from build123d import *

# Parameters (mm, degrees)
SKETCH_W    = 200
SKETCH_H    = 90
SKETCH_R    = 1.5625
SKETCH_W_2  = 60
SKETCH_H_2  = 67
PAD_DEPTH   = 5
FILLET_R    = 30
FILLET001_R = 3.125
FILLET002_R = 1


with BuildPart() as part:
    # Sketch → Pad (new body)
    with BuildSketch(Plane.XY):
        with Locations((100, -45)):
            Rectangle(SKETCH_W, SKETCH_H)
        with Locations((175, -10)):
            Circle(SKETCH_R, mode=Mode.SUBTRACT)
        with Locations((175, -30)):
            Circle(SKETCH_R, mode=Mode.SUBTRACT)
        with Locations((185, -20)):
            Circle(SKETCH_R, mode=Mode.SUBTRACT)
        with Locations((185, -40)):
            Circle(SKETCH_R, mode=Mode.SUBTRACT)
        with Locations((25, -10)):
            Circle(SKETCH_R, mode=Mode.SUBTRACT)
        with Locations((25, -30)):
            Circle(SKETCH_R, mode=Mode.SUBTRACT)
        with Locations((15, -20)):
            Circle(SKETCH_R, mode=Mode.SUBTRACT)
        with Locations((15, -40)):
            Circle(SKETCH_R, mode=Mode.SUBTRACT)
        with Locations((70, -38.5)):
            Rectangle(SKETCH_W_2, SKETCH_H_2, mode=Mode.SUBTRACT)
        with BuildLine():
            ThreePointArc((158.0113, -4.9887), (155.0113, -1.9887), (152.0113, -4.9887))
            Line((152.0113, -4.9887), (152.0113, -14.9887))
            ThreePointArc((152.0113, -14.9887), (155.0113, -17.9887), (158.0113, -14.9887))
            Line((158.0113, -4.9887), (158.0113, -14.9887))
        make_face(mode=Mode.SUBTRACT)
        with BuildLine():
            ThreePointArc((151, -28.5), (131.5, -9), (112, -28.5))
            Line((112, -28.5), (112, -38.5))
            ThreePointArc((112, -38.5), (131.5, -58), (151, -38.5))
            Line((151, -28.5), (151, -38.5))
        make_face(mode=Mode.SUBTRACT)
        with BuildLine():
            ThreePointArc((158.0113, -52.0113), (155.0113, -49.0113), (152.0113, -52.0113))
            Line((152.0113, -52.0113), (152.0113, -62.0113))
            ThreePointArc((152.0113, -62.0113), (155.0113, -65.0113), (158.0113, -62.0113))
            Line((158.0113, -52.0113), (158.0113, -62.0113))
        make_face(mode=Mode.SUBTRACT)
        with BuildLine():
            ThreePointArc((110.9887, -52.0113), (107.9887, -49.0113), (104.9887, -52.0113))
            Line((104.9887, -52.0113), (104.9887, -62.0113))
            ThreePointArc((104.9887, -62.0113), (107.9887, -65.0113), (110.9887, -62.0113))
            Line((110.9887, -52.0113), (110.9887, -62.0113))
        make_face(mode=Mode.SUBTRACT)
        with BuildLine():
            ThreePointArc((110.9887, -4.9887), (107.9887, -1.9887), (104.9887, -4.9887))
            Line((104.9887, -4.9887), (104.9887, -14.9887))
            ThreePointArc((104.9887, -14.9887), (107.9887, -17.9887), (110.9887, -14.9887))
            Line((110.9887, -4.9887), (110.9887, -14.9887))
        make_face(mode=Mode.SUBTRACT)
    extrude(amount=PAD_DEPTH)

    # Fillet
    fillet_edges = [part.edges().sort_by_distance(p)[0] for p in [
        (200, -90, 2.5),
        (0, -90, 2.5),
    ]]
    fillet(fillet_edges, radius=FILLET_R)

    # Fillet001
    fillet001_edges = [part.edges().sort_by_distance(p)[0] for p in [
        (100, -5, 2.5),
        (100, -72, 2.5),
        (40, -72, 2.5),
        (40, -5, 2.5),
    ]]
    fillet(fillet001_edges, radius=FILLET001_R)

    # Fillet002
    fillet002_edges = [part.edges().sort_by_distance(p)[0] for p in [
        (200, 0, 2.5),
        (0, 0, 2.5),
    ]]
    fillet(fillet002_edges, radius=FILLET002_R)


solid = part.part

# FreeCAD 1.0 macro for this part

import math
import FreeCAD as App
import Part
import Sketcher
Q = App.Units.Quantity


def edges_at(feature, points):
    """Names of the edges that pass closest to the given points."""
    edges = feature.Shape.Edges
    near = lambda p: min(range(len(edges)), key=lambda i: edges[i].distToShape(Part.Vertex(*p))[0])
    return sorted({f"Edge{near(p) + 1}" for p in points})


def add_polygon(sketch, points):
    """Adds a closed chain of lines whose ends are joined by coincident constraints."""
    first, n = sketch.GeometryCount, len(points)
    for a, b in zip(points, points[1:] + points[:1]):
        sketch.addGeometry(Part.LineSegment(App.Vector(*a, 0), App.Vector(*b, 0)), False)
    for i in range(n):
        sketch.addConstraint(Sketcher.Constraint("Coincident", first + i, 2, first + (i + 1) % n, 1))

doc = App.newDocument("Part")
body = doc.addObject("PartDesign::Body", "Body")

# Sketch on XY plane
sketch1 = body.newObject("Sketcher::SketchObject", "Sketch")
sketch1.AttachmentSupport = (doc.getObject("XY_Plane"), [""])
sketch1.MapMode = "FlatFace"
add_polygon(sketch1, [(0, 0), (0, -90), (200, -90), (200, 0)])  # lines 0-3
sketch1.addGeometry(Part.Circle(App.Vector(15, -40, 0), App.Vector(0, 0, 1), 1.6), False)  # 4
add_polygon(sketch1, [(100, -72), (40, -72), (40, -5), (100, -5)])  # lines 5-8
sketch1.addGeometry(Part.ArcOfCircle(Part.Circle(App.Vector(108, -52, 0), App.Vector(0, 0, 1), 3), math.radians(0), math.radians(180)), False)  # 9
sketch1.addGeometry(Part.LineSegment(App.Vector(111, -52, 0), App.Vector(111, -62, 0)), False)  # 10
sketch1.addGeometry(Part.ArcOfCircle(Part.Circle(App.Vector(108, -62, 0), App.Vector(0, 0, 1), 3), math.radians(180), math.radians(360)), False)  # 11
sketch1.addGeometry(Part.LineSegment(App.Vector(105, -62, 0), App.Vector(105, -52, 0)), False)  # 12
sketch1.addGeometry(Part.ArcOfCircle(Part.Circle(App.Vector(155, -52, 0), App.Vector(0, 0, 1), 3), math.radians(0), math.radians(180)), False)  # 13
sketch1.addGeometry(Part.LineSegment(App.Vector(158, -52, 0), App.Vector(158, -62, 0)), False)  # 14
sketch1.addGeometry(Part.ArcOfCircle(Part.Circle(App.Vector(155, -62, 0), App.Vector(0, 0, 1), 3), math.radians(180), math.radians(360)), False)  # 15
sketch1.addGeometry(Part.LineSegment(App.Vector(152, -62, 0), App.Vector(152, -52, 0)), False)  # 16
sketch1.addGeometry(Part.Circle(App.Vector(185, -40, 0), App.Vector(0, 0, 1), 1.6), False)  # 17
sketch1.addGeometry(Part.Circle(App.Vector(25, -30, 0), App.Vector(0, 0, 1), 1.6), False)  # 18
sketch1.addGeometry(Part.Circle(App.Vector(15, -20, 0), App.Vector(0, 0, 1), 1.6), False)  # 19
sketch1.addGeometry(Part.Circle(App.Vector(25, -10, 0), App.Vector(0, 0, 1), 1.6), False)  # 20
sketch1.addGeometry(Part.ArcOfCircle(Part.Circle(App.Vector(131.5, -28.5, 0), App.Vector(0, 0, 1), 19.5), math.radians(0), math.radians(180)), False)  # 21
sketch1.addGeometry(Part.LineSegment(App.Vector(151, -28.5, 0), App.Vector(151, -38.5, 0)), False)  # 22
sketch1.addGeometry(Part.ArcOfCircle(Part.Circle(App.Vector(131.5, -38.5, 0), App.Vector(0, 0, 1), 19.5), math.radians(180), math.radians(360)), False)  # 23
sketch1.addGeometry(Part.LineSegment(App.Vector(112, -38.5, 0), App.Vector(112, -28.5, 0)), False)  # 24
sketch1.addGeometry(Part.Circle(App.Vector(175, -30, 0), App.Vector(0, 0, 1), 1.6), False)  # 25
sketch1.addGeometry(Part.Circle(App.Vector(185, -20, 0), App.Vector(0, 0, 1), 1.6), False)  # 26
sketch1.addGeometry(Part.ArcOfCircle(Part.Circle(App.Vector(108, -5, 0), App.Vector(0, 0, 1), 3), math.radians(0), math.radians(180)), False)  # 27
sketch1.addGeometry(Part.LineSegment(App.Vector(111, -5, 0), App.Vector(111, -15, 0)), False)  # 28
sketch1.addGeometry(Part.ArcOfCircle(Part.Circle(App.Vector(108, -15, 0), App.Vector(0, 0, 1), 3), math.radians(180), math.radians(360)), False)  # 29
sketch1.addGeometry(Part.LineSegment(App.Vector(105, -15, 0), App.Vector(105, -5, 0)), False)  # 30
sketch1.addGeometry(Part.ArcOfCircle(Part.Circle(App.Vector(155, -5, 0), App.Vector(0, 0, 1), 3), math.radians(0), math.radians(180)), False)  # 31
sketch1.addGeometry(Part.LineSegment(App.Vector(158, -5, 0), App.Vector(158, -15, 0)), False)  # 32
sketch1.addGeometry(Part.ArcOfCircle(Part.Circle(App.Vector(155, -15, 0), App.Vector(0, 0, 1), 3), math.radians(180), math.radians(360)), False)  # 33
sketch1.addGeometry(Part.LineSegment(App.Vector(152, -15, 0), App.Vector(152, -5, 0)), False)  # 34
sketch1.addGeometry(Part.Circle(App.Vector(175, -10, 0), App.Vector(0, 0, 1), 1.6), False)  # 35
sketch1.addConstraint([
    Sketcher.Constraint("Tangent", 9, 1, 10, 1),
    Sketcher.Constraint("Tangent", 10, 2, 11, 2),
    Sketcher.Constraint("Tangent", 11, 1, 12, 1),
    Sketcher.Constraint("Tangent", 12, 2, 9, 2),
    Sketcher.Constraint("Tangent", 13, 1, 14, 1),
    Sketcher.Constraint("Tangent", 14, 2, 15, 2),
    Sketcher.Constraint("Tangent", 15, 1, 16, 1),
    Sketcher.Constraint("Tangent", 16, 2, 13, 2),
    Sketcher.Constraint("Tangent", 21, 1, 22, 1),
    Sketcher.Constraint("Tangent", 22, 2, 23, 2),
    Sketcher.Constraint("Tangent", 23, 1, 24, 1),
    Sketcher.Constraint("Tangent", 24, 2, 21, 2),
    Sketcher.Constraint("Tangent", 27, 1, 28, 1),
    Sketcher.Constraint("Tangent", 28, 2, 29, 2),
    Sketcher.Constraint("Tangent", 29, 1, 30, 1),
    Sketcher.Constraint("Tangent", 30, 2, 27, 2),
    Sketcher.Constraint("Tangent", 31, 1, 32, 1),
    Sketcher.Constraint("Tangent", 32, 2, 33, 2),
    Sketcher.Constraint("Tangent", 33, 1, 34, 1),
    Sketcher.Constraint("Tangent", 34, 2, 31, 2),
    Sketcher.Constraint("Vertical", 0),
    Sketcher.Constraint("Horizontal", 1),
    Sketcher.Constraint("Vertical", 2),
    Sketcher.Constraint("Horizontal", 3),
    Sketcher.Constraint("Horizontal", 5),
    Sketcher.Constraint("Vertical", 6),
    Sketcher.Constraint("Horizontal", 7),
    Sketcher.Constraint("Vertical", 8),
    Sketcher.Constraint("Vertical", 10),
    Sketcher.Constraint("Vertical", 12),
    Sketcher.Constraint("Vertical", 14),
    Sketcher.Constraint("Vertical", 16),
    Sketcher.Constraint("Vertical", 22),
    Sketcher.Constraint("Vertical", 24),
    Sketcher.Constraint("Vertical", 28),
    Sketcher.Constraint("Vertical", 30),
    Sketcher.Constraint("Vertical", 32),
    Sketcher.Constraint("Vertical", 34),
    Sketcher.Constraint("Coincident", 3, 2, -1, 1),
    Sketcher.Constraint("Equal", 11, 13),
    Sketcher.Constraint("Equal", 4, 17),
    Sketcher.Constraint("Equal", 17, 18),
    Sketcher.Constraint("Equal", 18, 19),
    Sketcher.Constraint("Equal", 19, 20),
    Sketcher.Constraint("Equal", 20, 25),
    Sketcher.Constraint("Equal", 25, 26),
    Sketcher.Constraint("Equal", 15, 27),
    Sketcher.Constraint("Equal", 29, 31),
    Sketcher.Constraint("Equal", 26, 35),
    Sketcher.Constraint("Horizontal", 9, 3, 13, 3),
    Sketcher.Constraint("Horizontal", 11, 3, 15, 3),
    Sketcher.Constraint("Horizontal", 4, 3, 17, 3),
    Sketcher.Constraint("Horizontal", 18, 3, 25, 3),
    Sketcher.Constraint("Horizontal", 19, 3, 26, 3),
    Sketcher.Constraint("Horizontal", 27, 3, 31, 3),
    Sketcher.Constraint("Horizontal", 29, 3, 33, 3),
    Sketcher.Constraint("Horizontal", 20, 3, 35, 3),
    Sketcher.Constraint("Vertical", 4, 3, 19, 3),
    Sketcher.Constraint("Vertical", 18, 3, 20, 3),
    Sketcher.Constraint("Vertical", 17, 3, 26, 3),
    Sketcher.Constraint("Vertical", 11, 3, 27, 3),
    Sketcher.Constraint("Vertical", 15, 3, 31, 3),
    Sketcher.Constraint("Vertical", 25, 3, 35, 3),
    Sketcher.Constraint("Equal", 16, 22),
    Sketcher.Constraint("Equal", 24, 28),
    Sketcher.Constraint("Radius", 9, Q("3 mm")),
    Sketcher.Constraint("Radius", 21, Q("19.5 mm")),
    Sketcher.Constraint("DistanceX", 1, 1, 1, 2, Q("200 mm")),
    Sketcher.Constraint("DistanceX", 5, 2, 5, 1, Q("60 mm")),
    Sketcher.Constraint("DistanceY", 0, 2, 0, 1, Q("90 mm")),
    Sketcher.Constraint("DistanceY", 6, 1, 6, 2, Q("67 mm")),
    Sketcher.Constraint("DistanceY", 10, 2, 10, 1, Q("10 mm")),
    Sketcher.Constraint("Diameter", 4, Q("3.125 mm")),
    Sketcher.Constraint("DistanceX", -1, 1, 4, 3, Q("15 mm")),
    Sketcher.Constraint("DistanceY", 4, 3, -1, 1, Q("40 mm")),
    Sketcher.Constraint("DistanceX", -1, 1, 17, 3, Q("185 mm")),
    Sketcher.Constraint("DistanceX", -1, 1, 18, 3, Q("25 mm")),
    Sketcher.Constraint("DistanceY", 18, 3, -1, 1, Q("30 mm")),
    Sketcher.Constraint("DistanceY", 19, 3, -1, 1, Q("20 mm")),
    Sketcher.Constraint("DistanceY", 20, 3, -1, 1, Q("10 mm")),
    Sketcher.Constraint("DistanceX", -1, 1, 25, 3, Q("175 mm")),
    Sketcher.Constraint("DistanceX", -1, 1, 5, 2, Q("40 mm")),
    Sketcher.Constraint("DistanceY", 5, 2, -1, 1, Q("72 mm")),
    Sketcher.Constraint("DistanceX", -1, 1, 21, 1, Q("151 mm")),
    Sketcher.Constraint("DistanceY", 21, 3, -1, 1, Q("28.5 mm")),
    Sketcher.Constraint("DistanceX", -1, 1, 9, 3, Q("107.9887 mm")),
    Sketcher.Constraint("DistanceY", 9, 3, -1, 1, Q("52.0113 mm")),
    Sketcher.Constraint("DistanceX", -1, 1, 13, 3, Q("155.0113 mm")),
    Sketcher.Constraint("DistanceY", 27, 3, -1, 1, Q("4.9887 mm")),
])
pad1 = body.newObject("PartDesign::Pad", "Pad")
pad1.Profile = sketch1
pad1.Length = 5
doc.recompute()

fillet = body.newObject("PartDesign::Fillet", "Fillet")
fillet.Base = (pad1, edges_at(pad1, [(200, -90, 2.5), (0, -90, 2.5)]))
fillet.Radius = 30
doc.recompute()

fillet2 = body.newObject("PartDesign::Fillet", "Fillet001")
fillet2.Base = (fillet, edges_at(fillet, [
    (100, -5, 2.5),
    (100, -72, 2.5),
    (40, -72, 2.5),
    (40, -5, 2.5),
]))
fillet2.Radius = 3.125
doc.recompute()

fillet3 = body.newObject("PartDesign::Fillet", "Fillet002")
fillet3.Base = (fillet2, edges_at(fillet2, [(200, 0, 2.5), (0, 0, 2.5)]))
fillet3.Radius = 1

doc.recompute()
